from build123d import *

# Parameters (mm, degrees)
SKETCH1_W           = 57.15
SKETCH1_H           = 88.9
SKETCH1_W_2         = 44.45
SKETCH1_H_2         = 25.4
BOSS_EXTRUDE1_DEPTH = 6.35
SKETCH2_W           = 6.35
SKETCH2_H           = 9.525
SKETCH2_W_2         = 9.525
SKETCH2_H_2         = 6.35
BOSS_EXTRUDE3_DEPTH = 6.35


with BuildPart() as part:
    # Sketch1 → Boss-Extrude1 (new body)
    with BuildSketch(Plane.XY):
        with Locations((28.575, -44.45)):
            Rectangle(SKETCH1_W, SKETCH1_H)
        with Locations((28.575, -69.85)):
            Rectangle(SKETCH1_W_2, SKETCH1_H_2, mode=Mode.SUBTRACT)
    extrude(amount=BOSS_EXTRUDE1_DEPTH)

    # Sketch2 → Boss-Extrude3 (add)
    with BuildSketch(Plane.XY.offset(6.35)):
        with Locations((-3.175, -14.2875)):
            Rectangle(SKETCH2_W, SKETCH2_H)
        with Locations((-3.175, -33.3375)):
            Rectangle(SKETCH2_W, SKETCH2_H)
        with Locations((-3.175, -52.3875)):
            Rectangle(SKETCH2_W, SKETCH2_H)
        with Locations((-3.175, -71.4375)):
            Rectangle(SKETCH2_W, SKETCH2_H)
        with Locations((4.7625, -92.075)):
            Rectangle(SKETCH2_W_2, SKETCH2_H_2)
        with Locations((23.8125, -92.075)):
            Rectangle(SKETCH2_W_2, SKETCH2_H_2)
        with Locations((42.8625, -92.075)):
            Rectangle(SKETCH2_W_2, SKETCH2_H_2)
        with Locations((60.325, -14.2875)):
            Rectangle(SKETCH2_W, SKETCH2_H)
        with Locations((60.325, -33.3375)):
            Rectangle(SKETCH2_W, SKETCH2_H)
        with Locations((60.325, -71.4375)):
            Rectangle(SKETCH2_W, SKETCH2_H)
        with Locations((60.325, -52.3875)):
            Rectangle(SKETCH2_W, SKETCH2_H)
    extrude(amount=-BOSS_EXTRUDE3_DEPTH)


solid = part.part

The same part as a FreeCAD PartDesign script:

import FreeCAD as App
import Part
import Sketcher
Q = App.Units.Quantity

doc = App.newDocument("Part")
body = doc.addObject("PartDesign::Body", "Body")

sketch1 = body.newObject("Sketcher::SketchObject", "Sketch")
sketch1.AttachmentSupport = (doc.getObject("XY_Plane"), [""])
sketch1.MapMode = "FlatFace"
sketch1.addGeometry(Part.LineSegment(App.Vector(0, 0, 0), App.Vector(0, -88.9, 0)), False)
sketch1.addGeometry(Part.LineSegment(App.Vector(0, -88.9, 0), App.Vector(57.15, -88.9, 0)), False)
sketch1.addGeometry(Part.LineSegment(App.Vector(57.15, -88.9, 0), App.Vector(57.15, 0, 0)), False)
sketch1.addGeometry(Part.LineSegment(App.Vector(57.15, 0, 0), App.Vector(0, 0, 0)), False)
sketch1.addGeometry(Part.LineSegment(App.Vector(50.8, -82.55, 0), App.Vector(6.35, -82.55, 0)), False)
sketch1.addGeometry(Part.LineSegment(App.Vector(6.35, -82.55, 0), App.Vector(6.35, -57.15, 0)), False)
sketch1.addGeometry(Part.LineSegment(App.Vector(6.35, -57.15, 0), App.Vector(50.8, -57.15, 0)), False)
sketch1.addGeometry(Part.LineSegment(App.Vector(50.8, -57.15, 0), App.Vector(50.8, -82.55, 0)), False)
sketch1.addConstraint(Sketcher.Constraint("Coincident", 0, 2, 1, 1))
sketch1.addConstraint(Sketcher.Constraint("Coincident", 1, 2, 2, 1))
sketch1.addConstraint(Sketcher.Constraint("Coincident", 2, 2, 3, 1))
sketch1.addConstraint(Sketcher.Constraint("Coincident", 3, 2, 0, 1))
sketch1.addConstraint(Sketcher.Constraint("Coincident", 4, 2, 5, 1))
sketch1.addConstraint(Sketcher.Constraint("Coincident", 5, 2, 6, 1))
sketch1.addConstraint(Sketcher.Constraint("Coincident", 6, 2, 7, 1))
sketch1.addConstraint(Sketcher.Constraint("Coincident", 7, 2, 4, 1))
sketch1.addConstraint(Sketcher.Constraint("Vertical", 0))
sketch1.addConstraint(Sketcher.Constraint("Horizontal", 1))
sketch1.addConstraint(Sketcher.Constraint("Vertical", 2))
sketch1.addConstraint(Sketcher.Constraint("Horizontal", 3))
sketch1.addConstraint(Sketcher.Constraint("Horizontal", 4))
sketch1.addConstraint(Sketcher.Constraint("Vertical", 5))
sketch1.addConstraint(Sketcher.Constraint("Horizontal", 6))
sketch1.addConstraint(Sketcher.Constraint("Vertical", 7))
sketch1.addConstraint(Sketcher.Constraint("Coincident", 3, 2, -1, 1))
sketch1.addConstraint(Sketcher.Constraint("DistanceY", 5, 1, 5, 2, Q("1 in")))
sketch1.addConstraint(Sketcher.Constraint("DistanceY", 0, 2, 0, 1, Q("3.5 in")))
sketch1.addConstraint(Sketcher.Constraint("DistanceX", -1, 1, 6, 2, Q("2 in")))
sketch1.addConstraint(Sketcher.Constraint("DistanceX", 4, 2, 1, 2, Q("2 in")))
sketch1.addConstraint(Sketcher.Constraint("DistanceX", 1, 1, 1, 2, Q("2.25 in")))
sketch1.addConstraint(Sketcher.Constraint("DistanceY", 4, 2, -1, 1, Q("3.25 in")))
pad1 = body.newObject("PartDesign::Pad", "Pad")
pad1.Profile = sketch1
pad1.Length = Q("0.25 in")

sketch2 = body.newObject("Sketcher::SketchObject", "Sketch001")
sketch2.AttachmentSupport = (doc.getObject("XY_Plane"), [""])
sketch2.MapMode = "FlatFace"
sketch2.AttachmentOffset = App.Placement(App.Vector(0, 0, 0.25 * 25.4), App.Rotation())
sketch2.addGeometry(Part.LineSegment(App.Vector(-6.35, -9.525, 0), App.Vector(-6.35, -19.05, 0)), False)
sketch2.addGeometry(Part.LineSegment(App.Vector(-6.35, -19.05, 0), App.Vector(0, -19.05, 0)), False)
sketch2.addGeometry(Part.LineSegment(App.Vector(0, -19.05, 0), App.Vector(0, -9.525, 0)), False)
sketch2.addGeometry(Part.LineSegment(App.Vector(0, -9.525, 0), App.Vector(-6.35, -9.525, 0)), False)
sketch2.addGeometry(Part.LineSegment(App.Vector(-6.35, -28.575, 0), App.Vector(-6.35, -38.1, 0)), False)
sketch2.addGeometry(Part.LineSegment(App.Vector(-6.35, -38.1, 0), App.Vector(0, -38.1, 0)), False)
sketch2.addGeometry(Part.LineSegment(App.Vector(0, -38.1, 0), App.Vector(0, -28.575, 0)), False)
sketch2.addGeometry(Part.LineSegment(App.Vector(0, -28.575, 0), App.Vector(-6.35, -28.575, 0)), False)
sketch2.addGeometry(Part.LineSegment(App.Vector(-6.35, -47.625, 0), App.Vector(-6.35, -57.15, 0)), False)
sketch2.addGeometry(Part.LineSegment(App.Vector(-6.35, -57.15, 0), App.Vector(0, -57.15, 0)), False)
sketch2.addGeometry(Part.LineSegment(App.Vector(0, -57.15, 0), App.Vector(0, -47.625, 0)), False)
sketch2.addGeometry(Part.LineSegment(App.Vector(0, -47.625, 0), App.Vector(-6.35, -47.625, 0)), False)
sketch2.addGeometry(Part.LineSegment(App.Vector(-6.35, -66.675, 0), App.Vector(-6.35, -76.2, 0)), False)
sketch2.addGeometry(Part.LineSegment(App.Vector(-6.35, -76.2, 0), App.Vector(0, -76.2, 0)), False)
sketch2.addGeometry(Part.LineSegment(App.Vector(0, -76.2, 0), App.Vector(0, -66.675, 0)), False)
sketch2.addGeometry(Part.LineSegment(App.Vector(0, -66.675, 0), App.Vector(-6.35, -66.675, 0)), False)
sketch2.addGeometry(Part.LineSegment(App.Vector(0, -88.9, 0), App.Vector(0, -95.25, 0)), False)
sketch2.addGeometry(Part.LineSegment(App.Vector(0, -95.25, 0), App.Vector(9.525, -95.25, 0)), False)
sketch2.addGeometry(Part.LineSegment(App.Vector(9.525, -95.25, 0), App.Vector(9.525, -88.9, 0)), False)
sketch2.addGeometry(Part.LineSegment(App.Vector(9.525, -88.9, 0), App.Vector(0, -88.9, 0)), False)
sketch2.addGeometry(Part.LineSegment(App.Vector(19.05, -88.9, 0), App.Vector(19.05, -95.25, 0)), False)
sketch2.addGeometry(Part.LineSegment(App.Vector(19.05, -95.25, 0), App.Vector(28.575, -95.25, 0)), False)
sketch2.addGeometry(Part.LineSegment(App.Vector(28.575, -95.25, 0), App.Vector(28.575, -88.9, 0)), False)
sketch2.addGeometry(Part.LineSegment(App.Vector(28.575, -88.9, 0), App.Vector(19.05, -88.9, 0)), False)
sketch2.addGeometry(Part.LineSegment(App.Vector(38.1, -88.9, 0), App.Vector(38.1, -95.25, 0)), False)
sketch2.addGeometry(Part.LineSegment(App.Vector(38.1, -95.25, 0), App.Vector(47.625, -95.25, 0)), False)
sketch2.addGeometry(Part.LineSegment(App.Vector(47.625, -95.25, 0), App.Vector(47.625, -88.9, 0)), False)
sketch2.addGeometry(Part.LineSegment(App.Vector(47.625, -88.9, 0), App.Vector(38.1, -88.9, 0)), False)
sketch2.addGeometry(Part.LineSegment(App.Vector(57.15, -9.525, 0), App.Vector(57.15, -19.05, 0)), False)
sketch2.addGeometry(Part.LineSegment(App.Vector(57.15, -19.05, 0), App.Vector(63.5, -19.05, 0)), False)
sketch2.addGeometry(Part.LineSegment(App.Vector(63.5, -19.05, 0), App.Vector(63.5, -9.525, 0)), False)
sketch2.addGeometry(Part.LineSegment(App.Vector(63.5, -9.525, 0), App.Vector(57.15, -9.525, 0)), False)
sketch2.addGeometry(Part.LineSegment(App.Vector(57.15, -28.575, 0), App.Vector(57.15, -38.1, 0)), False)
sketch2.addGeometry(Part.LineSegment(App.Vector(57.15, -38.1, 0), App.Vector(63.5, -38.1, 0)), False)
sketch2.addGeometry(Part.LineSegment(App.Vector(63.5, -38.1, 0), App.Vector(63.5, -28.575, 0)), False)
sketch2.addGeometry(Part.LineSegment(App.Vector(63.5, -28.575, 0), App.Vector(57.15, -28.575, 0)), False)
sketch2.addGeometry(Part.LineSegment(App.Vector(57.15, -66.675, 0), App.Vector(57.15, -76.2, 0)), False)
sketch2.addGeometry(Part.LineSegment(App.Vector(57.15, -76.2, 0), App.Vector(63.5, -76.2, 0)), False)
sketch2.addGeometry(Part.LineSegment(App.Vector(63.5, -76.2, 0), App.Vector(63.5, -66.675, 0)), False)
sketch2.addGeometry(Part.LineSegment(App.Vector(63.5, -66.675, 0), App.Vector(57.15, -66.675, 0)), False)
sketch2.addGeometry(Part.LineSegment(App.Vector(57.15, -47.625, 0), App.Vector(57.15, -57.15, 0)), False)
sketch2.addGeometry(Part.LineSegment(App.Vector(57.15, -57.15, 0), App.Vector(63.5, -57.15, 0)), False)
sketch2.addGeometry(Part.LineSegment(App.Vector(63.5, -57.15, 0), App.Vector(63.5, -47.625, 0)), False)
sketch2.addGeometry(Part.LineSegment(App.Vector(63.5, -47.625, 0), App.Vector(57.15, -47.625, 0)), False)
sketch2.addConstraint(Sketcher.Constraint("Coincident", 0, 2, 1, 1))
sketch2.addConstraint(Sketcher.Constraint("Coincident", 1, 2, 2, 1))
sketch2.addConstraint(Sketcher.Constraint("Coincident", 2, 2, 3, 1))
sketch2.addConstraint(Sketcher.Constraint("Coincident", 3, 2, 0, 1))
sketch2.addConstraint(Sketcher.Constraint("Coincident", 4, 2, 5, 1))
sketch2.addConstraint(Sketcher.Constraint("Coincident", 5, 2, 6, 1))
sketch2.addConstraint(Sketcher.Constraint("Coincident", 6, 2, 7, 1))
sketch2.addConstraint(Sketcher.Constraint("Coincident", 7, 2, 4, 1))
sketch2.addConstraint(Sketcher.Constraint("Coincident", 8, 2, 9, 1))
sketch2.addConstraint(Sketcher.Constraint("Coincident", 9, 2, 10, 1))
sketch2.addConstraint(Sketcher.Constraint("Coincident", 10, 2, 11, 1))
sketch2.addConstraint(Sketcher.Constraint("Coincident", 11, 2, 8, 1))
sketch2.addConstraint(Sketcher.Constraint("Coincident", 12, 2, 13, 1))
sketch2.addConstraint(Sketcher.Constraint("Coincident", 13, 2, 14, 1))
sketch2.addConstraint(Sketcher.Constraint("Coincident", 14, 2, 15, 1))
sketch2.addConstraint(Sketcher.Constraint("Coincident", 15, 2, 12, 1))
sketch2.addConstraint(Sketcher.Constraint("Coincident", 16, 2, 17, 1))
sketch2.addConstraint(Sketcher.Constraint("Coincident", 17, 2, 18, 1))
sketch2.addConstraint(Sketcher.Constraint("Coincident", 18, 2, 19, 1))
sketch2.addConstraint(Sketcher.Constraint("Coincident", 19, 2, 16, 1))
sketch2.addConstraint(Sketcher.Constraint("Coincident", 20, 2, 21, 1))
sketch2.addConstraint(Sketcher.Constraint("Coincident", 21, 2, 22, 1))
sketch2.addConstraint(Sketcher.Constraint("Coincident", 22, 2, 23, 1))
sketch2.addConstraint(Sketcher.Constraint("Coincident", 23, 2, 20, 1))
sketch2.addConstraint(Sketcher.Constraint("Coincident", 24, 2, 25, 1))
sketch2.addConstraint(Sketcher.Constraint("Coincident", 25, 2, 26, 1))
sketch2.addConstraint(Sketcher.Constraint("Coincident", 26, 2, 27, 1))
sketch2.addConstraint(Sketcher.Constraint("Coincident", 27, 2, 24, 1))
sketch2.addConstraint(Sketcher.Constraint("Coincident", 28, 2, 29, 1))
sketch2.addConstraint(Sketcher.Constraint("Coincident", 29, 2, 30, 1))
sketch2.addConstraint(Sketcher.Constraint("Coincident", 30, 2, 31, 1))
sketch2.addConstraint(Sketcher.Constraint("Coincident", 31, 2, 28, 1))
sketch2.addConstraint(Sketcher.Constraint("Coincident", 32, 2, 33, 1))
sketch2.addConstraint(Sketcher.Constraint("Coincident", 33, 2, 34, 1))
sketch2.addConstraint(Sketcher.Constraint("Coincident", 34, 2, 35, 1))
sketch2.addConstraint(Sketcher.Constraint("Coincident", 35, 2, 32, 1))
sketch2.addConstraint(Sketcher.Constraint("Coincident", 36, 2, 37, 1))
sketch2.addConstraint(Sketcher.Constraint("Coincident", 37, 2, 38, 1))
sketch2.addConstraint(Sketcher.Constraint("Coincident", 38, 2, 39, 1))
sketch2.addConstraint(Sketcher.Constraint("Coincident", 39, 2, 36, 1))
sketch2.addConstraint(Sketcher.Constraint("Coincident", 40, 2, 41, 1))
sketch2.addConstraint(Sketcher.Constraint("Coincident", 41, 2, 42, 1))
sketch2.addConstraint(Sketcher.Constraint("Coincident", 42, 2, 43, 1))
sketch2.addConstraint(Sketcher.Constraint("Coincident", 43, 2, 40, 1))
sketch2.addConstraint(Sketcher.Constraint("Vertical", 0))
sketch2.addConstraint(Sketcher.Constraint("Horizontal", 1))
sketch2.addConstraint(Sketcher.Constraint("Vertical", 2))
sketch2.addConstraint(Sketcher.Constraint("Horizontal", 3))
sketch2.addConstraint(Sketcher.Constraint("Vertical", 4))
sketch2.addConstraint(Sketcher.Constraint("Horizontal", 5))
sketch2.addConstraint(Sketcher.Constraint("Vertical", 6))
sketch2.addConstraint(Sketcher.Constraint("Horizontal", 7))
sketch2.addConstraint(Sketcher.Constraint("Vertical", 8))
sketch2.addConstraint(Sketcher.Constraint("Horizontal", 9))
sketch2.addConstraint(Sketcher.Constraint("Vertical", 10))
sketch2.addConstraint(Sketcher.Constraint("Horizontal", 11))
sketch2.addConstraint(Sketcher.Constraint("Vertical", 12))
sketch2.addConstraint(Sketcher.Constraint("Horizontal", 13))
sketch2.addConstraint(Sketcher.Constraint("Vertical", 14))
sketch2.addConstraint(Sketcher.Constraint("Horizontal", 15))
sketch2.addConstraint(Sketcher.Constraint("Vertical", 16))
sketch2.addConstraint(Sketcher.Constraint("Horizontal", 17))
sketch2.addConstraint(Sketcher.Constraint("Vertical", 18))
sketch2.addConstraint(Sketcher.Constraint("Horizontal", 19))
sketch2.addConstraint(Sketcher.Constraint("Vertical", 20))
sketch2.addConstraint(Sketcher.Constraint("Horizontal", 21))
sketch2.addConstraint(Sketcher.Constraint("Vertical", 22))
sketch2.addConstraint(Sketcher.Constraint("Horizontal", 23))
sketch2.addConstraint(Sketcher.Constraint("Vertical", 24))
sketch2.addConstraint(Sketcher.Constraint("Horizontal", 25))
sketch2.addConstraint(Sketcher.Constraint("Vertical", 26))
sketch2.addConstraint(Sketcher.Constraint("Horizontal", 27))
sketch2.addConstraint(Sketcher.Constraint("Vertical", 28))
sketch2.addConstraint(Sketcher.Constraint("Horizontal", 29))
sketch2.addConstraint(Sketcher.Constraint("Vertical", 30))
sketch2.addConstraint(Sketcher.Constraint("Horizontal", 31))
sketch2.addConstraint(Sketcher.Constraint("Vertical", 32))
sketch2.addConstraint(Sketcher.Constraint("Horizontal", 33))
sketch2.addConstraint(Sketcher.Constraint("Vertical", 34))
sketch2.addConstraint(Sketcher.Constraint("Horizontal", 35))
sketch2.addConstraint(Sketcher.Constraint("Vertical", 36))
sketch2.addConstraint(Sketcher.Constraint("Horizontal", 37))
sketch2.addConstraint(Sketcher.Constraint("Vertical", 38))
sketch2.addConstraint(Sketcher.Constraint("Horizontal", 39))
sketch2.addConstraint(Sketcher.Constraint("Vertical", 40))
sketch2.addConstraint(Sketcher.Constraint("Horizontal", 41))
sketch2.addConstraint(Sketcher.Constraint("Vertical", 42))
sketch2.addConstraint(Sketcher.Constraint("Horizontal", 43))
sketch2.addConstraint(Sketcher.Constraint("PointOnObject", 1, 2, -2))
sketch2.addConstraint(Sketcher.Constraint("PointOnObject", 5, 2, -2))
sketch2.addConstraint(Sketcher.Constraint("PointOnObject", 9, 2, -2))
sketch2.addConstraint(Sketcher.Constraint("PointOnObject", 13, 2, -2))
sketch2.addConstraint(Sketcher.Constraint("PointOnObject", 16, 2, -2))
sketch2.addConstraint(Sketcher.Constraint("Horizontal", 17, 2, 20, 2))
sketch2.addConstraint(Sketcher.Constraint("Horizontal", 19, 2, 22, 2))
sketch2.addConstraint(Sketcher.Constraint("Horizontal", 21, 2, 24, 2))
sketch2.addConstraint(Sketcher.Constraint("Horizontal", 23, 2, 26, 2))
sketch2.addConstraint(Sketcher.Constraint("Horizontal", 1, 2, 28, 2))
sketch2.addConstraint(Sketcher.Constraint("Horizontal", 3, 2, 30, 2))
sketch2.addConstraint(Sketcher.Constraint("Horizontal", 5, 2, 32, 2))
sketch2.addConstraint(Sketcher.Constraint("Horizontal", 7, 2, 34, 2))
sketch2.addConstraint(Sketcher.Constraint("Horizontal", 13, 2, 36, 2))
sketch2.addConstraint(Sketcher.Constraint("Horizontal", 15, 2, 38, 2))
sketch2.addConstraint(Sketcher.Constraint("Horizontal", 9, 2, 40, 2))
sketch2.addConstraint(Sketcher.Constraint("Horizontal", 11, 2, 42, 2))
sketch2.addConstraint(Sketcher.Constraint("Vertical", 3, 2, 4, 2))
sketch2.addConstraint(Sketcher.Constraint("Vertical", 7, 2, 8, 2))
sketch2.addConstraint(Sketcher.Constraint("Vertical", 11, 2, 12, 2))
sketch2.addConstraint(Sketcher.Constraint("Vertical", 31, 2, 32, 2))
sketch2.addConstraint(Sketcher.Constraint("Vertical", 30, 2, 33, 2))
sketch2.addConstraint(Sketcher.Constraint("Vertical", 35, 2, 36, 2))
sketch2.addConstraint(Sketcher.Constraint("Vertical", 34, 2, 37, 2))
sketch2.addConstraint(Sketcher.Constraint("Vertical", 39, 2, 40, 2))
sketch2.addConstraint(Sketcher.Constraint("Vertical", 38, 2, 41, 2))
sketch2.addConstraint(Sketcher.Constraint("Equal", 19, 21))
sketch2.addConstraint(Sketcher.Constraint("Equal", 23, 25))
sketch2.addConstraint(Sketcher.Constraint("Equal", 15, 29))
sketch2.addConstraint(Sketcher.Constraint("Equal", 27, 0))
sketch2.addConstraint(Sketcher.Constraint("Equal", 2, 4))
sketch2.addConstraint(Sketcher.Constraint("Equal", 6, 8))
sketch2.addConstraint(Sketcher.Constraint("Equal", 10, 12))
sketch2.addConstraint(Sketcher.Constraint("Equal", 43, 16))
sketch2.addConstraint(Sketcher.Constraint("DistanceY", 12, 2, -1, 1, Q("3 in")))
sketch2.addConstraint(Sketcher.Constraint("DistanceY", 26, 2, 32, 2, Q("2 in")))
sketch2.addConstraint(Sketcher.Constraint("DistanceX", 27, 2, 37, 2, Q("1 in")))
sketch2.addConstraint(Sketcher.Constraint("DistanceX", 1, 1, 1, 2, Q("0.25 in")))
sketch2.addConstraint(Sketcher.Constraint("DistanceY", 4, 2, -1, 1, Q("1.5 in")))
sketch2.addConstraint(Sketcher.Constraint("DistanceX", -1, 1, 24, 2, Q("1.5 in")))
sketch2.addConstraint(Sketcher.Constraint("DistanceY", 8, 2, 0, 2, Q("1.5 in")))
sketch2.addConstraint(Sketcher.Constraint("DistanceY", 16, 2, 9, 2, Q("1.5 in")))
sketch2.addConstraint(Sketcher.Constraint("DistanceX", 17, 1, 17, 2, Q("0.375 in")))
sketch2.addConstraint(Sketcher.Constraint("DistanceX", -1, 1, 20, 2, Q("0.75 in")))
pad2 = body.newObject("PartDesign::Pad", "Pad001")
pad2.Profile = sketch2
pad2.Length = Q("0.25 in")
pad2.Reversed = True

doc.recompute()
